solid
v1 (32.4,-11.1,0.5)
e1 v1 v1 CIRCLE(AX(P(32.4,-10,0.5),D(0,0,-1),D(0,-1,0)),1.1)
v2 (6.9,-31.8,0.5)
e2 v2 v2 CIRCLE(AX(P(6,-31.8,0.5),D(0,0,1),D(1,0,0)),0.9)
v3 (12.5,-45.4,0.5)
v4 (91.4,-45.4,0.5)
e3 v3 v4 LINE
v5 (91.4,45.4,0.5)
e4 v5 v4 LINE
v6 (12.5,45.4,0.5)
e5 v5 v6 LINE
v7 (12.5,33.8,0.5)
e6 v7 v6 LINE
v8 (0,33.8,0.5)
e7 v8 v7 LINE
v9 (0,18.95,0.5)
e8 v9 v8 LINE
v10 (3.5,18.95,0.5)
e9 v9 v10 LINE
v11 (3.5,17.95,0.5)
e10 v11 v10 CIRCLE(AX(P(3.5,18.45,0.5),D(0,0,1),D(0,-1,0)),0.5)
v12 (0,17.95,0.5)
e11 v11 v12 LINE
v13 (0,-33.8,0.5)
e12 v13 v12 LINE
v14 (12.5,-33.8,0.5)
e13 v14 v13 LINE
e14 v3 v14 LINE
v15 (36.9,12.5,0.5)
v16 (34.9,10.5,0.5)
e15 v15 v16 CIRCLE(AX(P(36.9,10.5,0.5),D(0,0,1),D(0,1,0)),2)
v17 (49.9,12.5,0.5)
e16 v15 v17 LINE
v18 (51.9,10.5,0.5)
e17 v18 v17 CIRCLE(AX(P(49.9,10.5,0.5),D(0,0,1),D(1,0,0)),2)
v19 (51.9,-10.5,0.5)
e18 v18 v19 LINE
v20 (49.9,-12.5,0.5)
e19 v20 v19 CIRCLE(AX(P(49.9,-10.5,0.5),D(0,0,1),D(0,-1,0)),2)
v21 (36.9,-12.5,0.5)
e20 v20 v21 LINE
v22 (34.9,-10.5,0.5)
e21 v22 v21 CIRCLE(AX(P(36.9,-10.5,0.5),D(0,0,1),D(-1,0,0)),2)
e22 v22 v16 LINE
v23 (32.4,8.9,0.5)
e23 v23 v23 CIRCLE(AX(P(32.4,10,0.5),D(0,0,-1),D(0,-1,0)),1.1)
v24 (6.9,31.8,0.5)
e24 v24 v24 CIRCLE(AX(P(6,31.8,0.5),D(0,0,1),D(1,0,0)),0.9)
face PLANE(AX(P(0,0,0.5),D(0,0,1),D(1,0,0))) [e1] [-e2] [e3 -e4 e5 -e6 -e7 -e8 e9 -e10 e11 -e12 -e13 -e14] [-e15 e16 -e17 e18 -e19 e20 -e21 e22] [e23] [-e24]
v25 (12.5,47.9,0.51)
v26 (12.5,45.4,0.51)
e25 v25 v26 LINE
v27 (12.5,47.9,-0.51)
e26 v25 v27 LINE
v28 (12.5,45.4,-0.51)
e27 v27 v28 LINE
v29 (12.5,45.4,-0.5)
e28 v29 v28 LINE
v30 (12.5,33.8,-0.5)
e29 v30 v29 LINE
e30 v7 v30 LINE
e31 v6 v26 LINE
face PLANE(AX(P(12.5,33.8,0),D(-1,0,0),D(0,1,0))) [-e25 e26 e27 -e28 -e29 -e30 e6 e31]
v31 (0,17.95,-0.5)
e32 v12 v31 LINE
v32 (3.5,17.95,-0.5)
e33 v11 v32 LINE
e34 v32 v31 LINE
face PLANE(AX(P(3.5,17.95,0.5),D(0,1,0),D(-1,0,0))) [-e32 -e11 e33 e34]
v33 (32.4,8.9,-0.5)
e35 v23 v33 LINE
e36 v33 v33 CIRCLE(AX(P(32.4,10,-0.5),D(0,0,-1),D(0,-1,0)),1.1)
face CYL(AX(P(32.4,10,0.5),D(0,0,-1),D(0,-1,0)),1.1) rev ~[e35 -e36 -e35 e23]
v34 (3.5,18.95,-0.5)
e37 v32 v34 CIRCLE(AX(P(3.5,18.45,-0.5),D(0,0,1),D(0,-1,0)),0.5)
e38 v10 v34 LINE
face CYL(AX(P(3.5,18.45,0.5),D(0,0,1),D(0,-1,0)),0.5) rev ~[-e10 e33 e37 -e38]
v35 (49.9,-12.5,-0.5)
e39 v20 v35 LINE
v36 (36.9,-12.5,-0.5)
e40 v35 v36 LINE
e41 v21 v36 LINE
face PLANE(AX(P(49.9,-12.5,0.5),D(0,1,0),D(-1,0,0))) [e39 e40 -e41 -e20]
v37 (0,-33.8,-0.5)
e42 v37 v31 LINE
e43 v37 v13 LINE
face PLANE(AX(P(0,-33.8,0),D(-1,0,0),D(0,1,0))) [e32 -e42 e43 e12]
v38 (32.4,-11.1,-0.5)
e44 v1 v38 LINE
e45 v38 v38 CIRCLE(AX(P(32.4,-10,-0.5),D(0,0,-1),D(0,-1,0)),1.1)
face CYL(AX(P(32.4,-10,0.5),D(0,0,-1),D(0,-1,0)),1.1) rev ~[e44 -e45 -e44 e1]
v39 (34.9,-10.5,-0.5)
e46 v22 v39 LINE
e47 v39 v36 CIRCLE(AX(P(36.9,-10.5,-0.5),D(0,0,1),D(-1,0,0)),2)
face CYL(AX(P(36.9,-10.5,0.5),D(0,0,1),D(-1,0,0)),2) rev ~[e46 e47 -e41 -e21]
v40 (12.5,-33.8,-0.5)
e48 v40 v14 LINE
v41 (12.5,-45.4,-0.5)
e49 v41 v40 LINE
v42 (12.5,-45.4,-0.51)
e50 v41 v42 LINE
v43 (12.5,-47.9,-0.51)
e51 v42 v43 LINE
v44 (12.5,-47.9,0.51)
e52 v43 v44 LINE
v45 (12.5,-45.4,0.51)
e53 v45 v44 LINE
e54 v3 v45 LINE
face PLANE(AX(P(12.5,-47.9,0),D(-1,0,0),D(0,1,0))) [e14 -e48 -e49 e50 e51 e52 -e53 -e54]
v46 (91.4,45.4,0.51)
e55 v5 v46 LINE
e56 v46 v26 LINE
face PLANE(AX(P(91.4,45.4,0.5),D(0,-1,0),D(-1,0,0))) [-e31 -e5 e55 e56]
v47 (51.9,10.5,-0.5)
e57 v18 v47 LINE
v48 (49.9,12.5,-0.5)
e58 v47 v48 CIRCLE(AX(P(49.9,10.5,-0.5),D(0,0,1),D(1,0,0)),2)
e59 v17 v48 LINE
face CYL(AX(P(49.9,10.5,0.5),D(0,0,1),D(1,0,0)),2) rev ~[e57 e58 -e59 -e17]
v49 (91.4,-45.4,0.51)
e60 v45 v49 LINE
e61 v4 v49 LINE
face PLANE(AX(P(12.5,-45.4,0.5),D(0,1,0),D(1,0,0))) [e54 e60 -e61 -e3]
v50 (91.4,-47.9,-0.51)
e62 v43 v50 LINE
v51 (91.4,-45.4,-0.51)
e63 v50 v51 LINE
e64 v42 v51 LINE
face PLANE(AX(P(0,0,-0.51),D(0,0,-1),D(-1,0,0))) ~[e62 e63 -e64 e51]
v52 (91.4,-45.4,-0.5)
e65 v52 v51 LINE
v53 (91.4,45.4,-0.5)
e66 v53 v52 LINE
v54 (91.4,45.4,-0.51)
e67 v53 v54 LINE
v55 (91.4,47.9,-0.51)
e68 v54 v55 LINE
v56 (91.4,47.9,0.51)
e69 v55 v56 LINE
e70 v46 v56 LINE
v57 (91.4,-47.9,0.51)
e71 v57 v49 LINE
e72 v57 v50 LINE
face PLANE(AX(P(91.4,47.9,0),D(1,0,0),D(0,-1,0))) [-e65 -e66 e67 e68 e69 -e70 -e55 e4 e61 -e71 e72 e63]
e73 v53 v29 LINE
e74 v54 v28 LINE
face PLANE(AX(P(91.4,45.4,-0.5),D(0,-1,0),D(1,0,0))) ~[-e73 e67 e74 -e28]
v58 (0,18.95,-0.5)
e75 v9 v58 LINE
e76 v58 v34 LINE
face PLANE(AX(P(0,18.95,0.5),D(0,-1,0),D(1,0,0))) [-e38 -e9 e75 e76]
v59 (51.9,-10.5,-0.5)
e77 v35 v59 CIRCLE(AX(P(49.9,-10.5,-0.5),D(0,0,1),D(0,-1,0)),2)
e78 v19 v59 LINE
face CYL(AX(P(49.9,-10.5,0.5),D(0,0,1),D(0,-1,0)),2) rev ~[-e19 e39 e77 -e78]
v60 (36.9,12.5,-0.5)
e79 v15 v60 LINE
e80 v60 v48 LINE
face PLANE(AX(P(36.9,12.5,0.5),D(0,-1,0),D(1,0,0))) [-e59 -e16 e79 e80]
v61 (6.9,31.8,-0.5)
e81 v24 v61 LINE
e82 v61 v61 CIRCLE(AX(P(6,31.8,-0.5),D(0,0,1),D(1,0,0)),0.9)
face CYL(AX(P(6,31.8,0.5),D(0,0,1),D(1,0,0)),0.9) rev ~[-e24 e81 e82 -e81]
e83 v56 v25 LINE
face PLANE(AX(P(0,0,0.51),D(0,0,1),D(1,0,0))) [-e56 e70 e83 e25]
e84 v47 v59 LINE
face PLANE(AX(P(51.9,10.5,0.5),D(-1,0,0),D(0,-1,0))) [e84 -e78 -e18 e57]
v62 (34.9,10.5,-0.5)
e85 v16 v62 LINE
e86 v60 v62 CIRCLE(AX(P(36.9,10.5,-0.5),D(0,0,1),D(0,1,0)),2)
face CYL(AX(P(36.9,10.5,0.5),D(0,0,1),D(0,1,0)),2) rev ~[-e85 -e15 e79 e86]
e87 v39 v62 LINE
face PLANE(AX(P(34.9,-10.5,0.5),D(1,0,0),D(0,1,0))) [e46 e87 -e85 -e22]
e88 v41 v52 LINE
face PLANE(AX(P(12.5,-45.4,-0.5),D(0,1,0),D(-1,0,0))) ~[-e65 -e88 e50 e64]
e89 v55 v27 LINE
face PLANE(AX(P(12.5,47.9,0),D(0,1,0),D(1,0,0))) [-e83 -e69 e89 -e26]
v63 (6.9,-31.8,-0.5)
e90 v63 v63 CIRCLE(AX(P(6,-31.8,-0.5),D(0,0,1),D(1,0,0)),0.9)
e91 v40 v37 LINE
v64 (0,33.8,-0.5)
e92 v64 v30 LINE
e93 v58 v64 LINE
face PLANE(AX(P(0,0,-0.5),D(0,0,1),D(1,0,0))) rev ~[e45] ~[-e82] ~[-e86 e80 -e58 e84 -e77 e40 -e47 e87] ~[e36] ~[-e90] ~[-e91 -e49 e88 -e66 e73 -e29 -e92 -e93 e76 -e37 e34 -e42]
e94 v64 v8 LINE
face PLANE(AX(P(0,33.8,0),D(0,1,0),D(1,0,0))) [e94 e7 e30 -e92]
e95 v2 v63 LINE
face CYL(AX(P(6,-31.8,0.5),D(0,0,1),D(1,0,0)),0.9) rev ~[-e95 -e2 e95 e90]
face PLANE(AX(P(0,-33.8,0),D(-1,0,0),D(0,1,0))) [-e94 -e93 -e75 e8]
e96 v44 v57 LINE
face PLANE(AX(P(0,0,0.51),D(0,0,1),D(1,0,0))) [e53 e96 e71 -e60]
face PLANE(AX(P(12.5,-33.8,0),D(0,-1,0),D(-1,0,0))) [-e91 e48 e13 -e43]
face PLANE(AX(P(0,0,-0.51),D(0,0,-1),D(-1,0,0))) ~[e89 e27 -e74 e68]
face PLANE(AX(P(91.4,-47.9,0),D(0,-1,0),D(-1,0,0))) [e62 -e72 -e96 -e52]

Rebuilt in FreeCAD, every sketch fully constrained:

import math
import FreeCAD as App
import Part
import Sketcher

V = App.Vector
Q = App.Units.Quantity

doc = App.newDocument("Part")
body = doc.addObject("PartDesign::Body", "Body")

# Sketch on XY plane
sketch1 = doc.addObject("Sketcher::SketchObject", "Sketch")
body.addObject(sketch1)
sketch1.AttachmentSupport = (doc.XY_Plane, [""])
sketch1.MapMode = "FlatFace"
sketch1.addGeometry([
    Part.LineSegment(V(12, 34, 0), V(0, 34, 0)),  # 0
    Part.LineSegment(V(0, 34, 0), V(0, -34, 0)),  # 1
    Part.LineSegment(V(0, -34, 0), V(12, -34, 0)),  # 2
    Part.LineSegment(V(12, -34, 0), V(12, -48, 0)),  # 3
    Part.LineSegment(V(12, -48, 0), V(91, -48, 0)),  # 4
    Part.LineSegment(V(91, -48, 0), V(91, 48, 0)),  # 5
    Part.LineSegment(V(91, 48, 0), V(12, 48, 0)),  # 6
    Part.LineSegment(V(12, 48, 0), V(12, 34, 0)),  # 7
], False)
sketch1.addConstraint([
    Sketcher.Constraint("Coincident", 0, 2, 1, 1),
    Sketcher.Constraint("Coincident", 1, 2, 2, 1),
    Sketcher.Constraint("Coincident", 2, 2, 3, 1),
    Sketcher.Constraint("Coincident", 3, 2, 4, 1),
    Sketcher.Constraint("Coincident", 4, 2, 5, 1),
    Sketcher.Constraint("Coincident", 5, 2, 6, 1),
    Sketcher.Constraint("Coincident", 6, 2, 7, 1),
    Sketcher.Constraint("Coincident", 7, 2, 0, 1),
    Sketcher.Constraint("Horizontal", 0),
    Sketcher.Constraint("Vertical", 1),
    Sketcher.Constraint("Horizontal", 2),
    Sketcher.Constraint("Vertical", 3),
    Sketcher.Constraint("Horizontal", 4),
    Sketcher.Constraint("Vertical", 5),
    Sketcher.Constraint("Horizontal", 6),
    Sketcher.Constraint("Vertical", 7),
    Sketcher.Constraint("Symmetric", 0, 2, 1, 2, -1, 1),
    Sketcher.Constraint("Symmetric", 3, 2, 6, 2, -1),
    Sketcher.Constraint("DistanceX", 0, 2, 0, 1, Q("12.5 mm")),
    Sketcher.Constraint("DistanceY", 1, 2, 1, 1, Q("67.6 mm")),
    Sketcher.Constraint("DistanceY", 5, 1, 5, 2, Q("95.8 mm")),
    Sketcher.Constraint("DistanceX", -1, 1, 4, 2, Q("91.4 mm")),
])
pad1 = doc.addObject("PartDesign::Pad", "Pad")
body.addObject(pad1)
pad1.Profile = sketch1
pad1.Length = 1
pad1.Midplane = True

# Sketch on XY plane
sketch2 = doc.addObject("Sketcher::SketchObject", "Sketch001")
body.addObject(sketch2)
sketch2.AttachmentSupport = (doc.XY_Plane, [""])
sketch2.MapMode = "FlatFace"
sketch2.AttachmentOffset = App.Placement(V(0, 0, 0.5), App.Rotation())
sketch2.addGeometry([
    Part.LineSegment(V(12.5, 47.9, 0), V(12.5, 45.4, 0)),  # 0
    Part.LineSegment(V(12.5, 45.4, 0), V(91.4, 45.4, 0)),  # 1
    Part.LineSegment(V(91.4, 45.4, 0), V(91.4, 47.9, 0)),  # 2
    Part.LineSegment(V(91.4, 47.9, 0), V(12.5, 47.9, 0)),  # 3
    Part.LineSegment(V(91.4, -47.9, 0), V(91.4, -45.4, 0)),  # 4
    Part.LineSegment(V(91.4, -45.4, 0), V(12.5, -45.4, 0)),  # 5
    Part.LineSegment(V(12.5, -45.4, 0), V(12.5, -47.9, 0)),  # 6
    Part.LineSegment(V(12.5, -47.9, 0), V(91.4, -47.9, 0)),  # 7
], False)
sketch2.addConstraint([
    Sketcher.Constraint("Coincident", 0, 2, 1, 1),
    Sketcher.Constraint("Coincident", 1, 2, 2, 1),
    Sketcher.Constraint("Coincident", 2, 2, 3, 1),
    Sketcher.Constraint("Coincident", 3, 2, 0, 1),
    Sketcher.Constraint("Coincident", 4, 2, 5, 1),
    Sketcher.Constraint("Coincident", 5, 2, 6, 1),
    Sketcher.Constraint("Coincident", 6, 2, 7, 1),
    Sketcher.Constraint("Coincident", 7, 2, 4, 1),
    Sketcher.Constraint("Vertical", 0),
    Sketcher.Constraint("Horizontal", 1),
    Sketcher.Constraint("Vertical", 2),
    Sketcher.Constraint("Horizontal", 3),
    Sketcher.Constraint("Vertical", 4),
    Sketcher.Constraint("Horizontal", 5),
    Sketcher.Constraint("Vertical", 6),
    Sketcher.Constraint("Horizontal", 7),
    Sketcher.Constraint("Symmetric", 1, 2, 4, 2, -1),
    Sketcher.Constraint("Symmetric", 3, 2, 6, 2, -1),
    Sketcher.Constraint("DistanceY", 0, 2, 0, 1, Q("2.5 mm")),
    Sketcher.Constraint("DistanceY", 4, 2, 1, 2, Q("90.8 mm")),
    Sketcher.Constraint("DistanceX", 1, 1, 1, 2, Q("78.9 mm")),
    Sketcher.Constraint("DistanceX", -1, 1, 0, 2, Q("12.5 mm")),
])
pad2 = doc.addObject("PartDesign::Pad", "Pad001")
body.addObject(pad2)
pad2.Profile = sketch2
pad2.Length = 0.01
doc.recompute()

mirrored = doc.addObject("PartDesign::Mirrored", "Mirrored")
body.addObject(mirrored)
mirrored.Originals = [pad2]
mirrored.MirrorPlane = (doc.XY_Plane, [""])
body.Tip = mirrored

# Sketch on XY plane
sketch3 = doc.addObject("Sketcher::SketchObject", "Sketch002")
body.addObject(sketch3)
sketch3.AttachmentSupport = (doc.XY_Plane, [""])
sketch3.MapMode = "FlatFace"
sketch3.AttachmentOffset = App.Placement(V(0, 0, 0.5), App.Rotation())
sketch3.addGeometry([
    Part.Circle(V(6, 31.8, 0), V(0, 0, 1), 0.9),
    Part.Circle(V(6, -31.8, 0), V(0, 0, 1), 0.9),
], False)
sketch3.addConstraint([
    Sketcher.Constraint("Equal", 0, 1),
    Sketcher.Constraint("Symmetric", 0, 3, 1, 3, -1),
    Sketcher.Constraint("Diameter", 0, Q("1.8 mm")),
    Sketcher.Constraint("DistanceX", -1, 1, 0, 3, Q("6 mm")),
    Sketcher.Constraint("DistanceY", -1, 1, 0, 3, Q("31.8 mm")),
])
pocket1 = doc.addObject("PartDesign::Pocket", "Pocket")
body.addObject(pocket1)
pocket1.Profile = sketch3
pocket1.Type = "ThroughAll"

# Sketch on XY plane
sketch4 = doc.addObject("Sketcher::SketchObject", "Sketch003")
body.addObject(sketch4)
sketch4.AttachmentSupport = (doc.XY_Plane, [""])
sketch4.MapMode = "FlatFace"
sketch4.AttachmentOffset = App.Placement(V(0, 0, 0.5), App.Rotation())
sketch4.addGeometry([
    Part.LineSegment(V(0, 18.9, 0), V(0, 17.9, 0)),
    Part.LineSegment(V(0, 17.9, 0), V(3.5, 17.9, 0)),
    Part.ArcOfCircle(Part.Circle(V(3.5, 18.4, 0), V(0, 0, 1), 0.5), math.radians(-90), math.radians(90)),
    Part.LineSegment(V(3.5, 18.9, 0), V(0, 18.9, 0)),
], False)
sketch4.addConstraint([
    Sketcher.Constraint("Coincident", 0, 2, 1, 1),
    Sketcher.Constraint("Tangent", 1, 2, 2, 1),
    Sketcher.Constraint("Tangent", 2, 2, 3, 1),
    Sketcher.Constraint("Coincident", 3, 2, 0, 1),
    Sketcher.Constraint("Vertical", 0),
    Sketcher.Constraint("Horizontal", 1),
    Sketcher.Constraint("Horizontal", 3),
    Sketcher.Constraint("PointOnObject", 0, 2, -2),
    Sketcher.Constraint("Radius", 2, Q("0.5 mm")),
    Sketcher.Constraint("DistanceX", 1, 1, 1, 2, Q("3.5 mm")),
    Sketcher.Constraint("DistanceY", -1, 1, 0, 2, Q("17.95 mm")),
])
pocket2 = doc.addObject("PartDesign::Pocket", "Pocket001")
body.addObject(pocket2)
pocket2.Profile = sketch4
pocket2.Type = "ThroughAll"

# Sketch on XY plane
sketch5 = doc.addObject("Sketcher::SketchObject", "Sketch004")
body.addObject(sketch5)
sketch5.AttachmentSupport = (doc.XY_Plane, [""])
sketch5.MapMode = "FlatFace"
sketch5.AttachmentOffset = App.Placement(V(0, 0, 0.5), App.Rotation())
sketch5.addGeometry([
    Part.LineSegment(V(49.9, 12.5, 0), V(36.9, 12.5, 0)),  # 0
    Part.ArcOfCircle(Part.Circle(V(36.9, 10.5, 0), V(0, 0, 1), 2), math.radians(90), math.radians(180)),  # 1
    Part.LineSegment(V(34.9, 10.5, 0), V(34.9, -10.5, 0)),  # 2
    Part.ArcOfCircle(Part.Circle(V(36.9, -10.5, 0), V(0, 0, 1), 2), math.radians(180), math.radians(270)),  # 3
    Part.LineSegment(V(36.9, -12.5, 0), V(49.9, -12.5, 0)),  # 4
    Part.ArcOfCircle(Part.Circle(V(49.9, -10.5, 0), V(0, 0, 1), 2), math.radians(-90), math.radians(0)),  # 5
    Part.LineSegment(V(51.9, -10.5, 0), V(51.9, 10.5, 0)),  # 6
    Part.ArcOfCircle(Part.Circle(V(49.9, 10.5, 0), V(0, 0, 1), 2), math.radians(0), math.radians(90)),  # 7
], False)
sketch5.addConstraint([
    Sketcher.Constraint("Tangent", 0, 2, 1, 1),
    Sketcher.Constraint("Tangent", 1, 2, 2, 1),
    Sketcher.Constraint("Tangent", 2, 2, 3, 1),
    Sketcher.Constraint("Tangent", 3, 2, 4, 1),
    Sketcher.Constraint("Tangent", 4, 2, 5, 1),
    Sketcher.Constraint("Tangent", 5, 2, 6, 1),
    Sketcher.Constraint("Tangent", 6, 2, 7, 1),
    Sketcher.Constraint("Tangent", 7, 2, 0, 1),
    Sketcher.Constraint("Horizontal", 0),
    Sketcher.Constraint("Vertical", 2),
    Sketcher.Constraint("Horizontal", 4),
    Sketcher.Constraint("Vertical", 6),
    Sketcher.Constraint("Equal", 1, 3),
    Sketcher.Constraint("Equal", 3, 5),
    Sketcher.Constraint("Equal", 5, 7),
    Sketcher.Constraint("Radius", 1, Q("2 mm")),
    Sketcher.Constraint("DistanceX", 2, 2, 5, 2, Q("17 mm")),
    Sketcher.Constraint("DistanceY", 2, 2, 2, 1, Q("21 mm")),
    Sketcher.Constraint("DistanceX", -1, 1, 1, 3, Q("36.9 mm")),
    Sketcher.Constraint("DistanceY", -1, 1, 1, 3, Q("10.5 mm")),
])
pocket3 = doc.addObject("PartDesign::Pocket", "Pocket002")
body.addObject(pocket3)
pocket3.Profile = sketch5
pocket3.Type = "ThroughAll"

# Sketch on XY plane
sketch6 = doc.addObject("Sketcher::SketchObject", "Sketch005")
body.addObject(sketch6)
sketch6.AttachmentSupport = (doc.XY_Plane, [""])
sketch6.MapMode = "FlatFace"
sketch6.AttachmentOffset = App.Placement(V(0, 0, 0.5), App.Rotation())
sketch6.addGeometry([
    Part.Circle(V(32.4, 10, 0), V(0, 0, 1), 1.1),
    Part.Circle(V(32.4, -10, 0), V(0, 0, 1), 1.1),
], False)
sketch6.addConstraint([
    Sketcher.Constraint("Equal", 0, 1),
    Sketcher.Constraint("Symmetric", 0, 3, 1, 3, -1),
    Sketcher.Constraint("Diameter", 0, Q("2.2 mm")),
    Sketcher.Constraint("DistanceY", -1, 1, 0, 3, Q("10 mm")),
    Sketcher.Constraint("DistanceX", -1, 1, 0, 3, Q("32.4 mm")),
])
doc.recompute()
hole = doc.addObject("PartDesign::Hole", "Hole")
body.addObject(hole)
hole.Profile = sketch6
hole.ThreadType = "None"
hole.Diameter = 2.2
hole.DepthType = "ThroughAll"

doc.recompute()
